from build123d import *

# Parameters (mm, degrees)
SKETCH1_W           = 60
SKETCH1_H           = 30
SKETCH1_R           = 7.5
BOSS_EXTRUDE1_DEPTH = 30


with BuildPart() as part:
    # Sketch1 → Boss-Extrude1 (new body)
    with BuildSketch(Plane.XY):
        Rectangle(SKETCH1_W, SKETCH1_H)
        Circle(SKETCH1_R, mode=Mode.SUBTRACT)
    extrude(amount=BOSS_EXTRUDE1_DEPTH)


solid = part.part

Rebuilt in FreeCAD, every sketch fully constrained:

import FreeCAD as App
import Part
import Sketcher
Q = App.Units.Quantity


def add_polygon(sketch, points):
    """Adds a closed chain of lines whose ends are joined by coincident constraints."""
    first, n = sketch.GeometryCount, len(points)
    for a, b in zip(points, points[1:] + points[:1]):
        sketch.addGeometry(Part.LineSegment(App.Vector(*a, 0), App.Vector(*b, 0)), False)
    for i in range(n):
        sketch.addConstraint(Sketcher.Constraint("Coincident", first + i, 2, first + (i + 1) % n, 1))

doc = App.newDocument("Part")
body = doc.addObject("PartDesign::Body", "Body")

# Sketch on XY plane
sketch1 = doc.addObject("Sketcher::SketchObject", "Sketch")
body.addObject(sketch1)
sketch1.AttachmentSupport = (doc.XY_Plane, [""])
sketch1.MapMode = "FlatFace"
add_polygon(sketch1, [(-30, 15), (-30, -15), (30, -15), (30, 15)])  # lines 0-3
sketch1.addGeometry(Part.Circle(App.Vector(0, 0, 0), App.Vector(0, 0, 1), 8), False)  # 4
sketch1.addConstraint([
    Sketcher.Constraint("Vertical", 0),
    Sketcher.Constraint("Horizontal", 1),
    Sketcher.Constraint("Vertical", 2),
    Sketcher.Constraint("Horizontal", 3),
    Sketcher.Constraint("Coincident", 4, 3, -1, 1),
    Sketcher.Constraint("Symmetric", 0, 2, 2, 2, -1, 1),
    Sketcher.Constraint("Diameter", 4, Q("15 mm")),
    Sketcher.Constraint("DistanceX", 1, 1, 1, 2, Q("60 mm")),
    Sketcher.Constraint("DistanceY", 0, 2, 0, 1, Q("30 mm")),
])
pad1 = doc.addObject("PartDesign::Pad", "Pad")
body.addObject(pad1)
pad1.Profile = sketch1
pad1.Length = 30

doc.recompute()
